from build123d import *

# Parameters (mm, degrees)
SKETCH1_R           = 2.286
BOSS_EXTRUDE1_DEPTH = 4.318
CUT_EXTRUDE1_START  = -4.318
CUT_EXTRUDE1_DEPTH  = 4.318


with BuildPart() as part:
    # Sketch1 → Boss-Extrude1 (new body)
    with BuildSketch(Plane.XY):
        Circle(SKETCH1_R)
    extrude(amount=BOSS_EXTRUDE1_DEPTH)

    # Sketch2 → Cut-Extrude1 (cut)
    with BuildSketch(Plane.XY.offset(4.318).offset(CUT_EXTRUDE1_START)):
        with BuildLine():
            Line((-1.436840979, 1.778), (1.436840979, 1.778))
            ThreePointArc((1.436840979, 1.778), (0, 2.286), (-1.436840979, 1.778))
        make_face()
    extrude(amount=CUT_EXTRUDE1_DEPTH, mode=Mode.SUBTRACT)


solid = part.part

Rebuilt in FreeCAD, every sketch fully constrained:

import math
import FreeCAD as App
import Part
import Sketcher
Q = App.Units.Quantity

doc = App.newDocument("Part")
params = doc.addObject("Spreadsheet::Sheet", "Params")
for row, (alias, value) in enumerate([
    ("sketch1_diameter", "0.18 in"),
    ("pad1_length", "0.17 in"),
    ("sketch2_radius", "0.09 in"),
    ("pocket1_length", "0.17 in"),
], start=1):
    params.set(f"A{row}", alias)
    params.set(f"B{row}", "=" + value)
    params.setAlias(f"B{row}", alias)

body = doc.addObject("PartDesign::Body", "Body")

# Sketch on XY plane
sketch1 = body.newObject("Sketcher::SketchObject", "Sketch")
sketch1.AttachmentSupport = (doc.getObject("XY_Plane"), [""])
sketch1.MapMode = "FlatFace"
sketch1.addGeometry(Part.Circle(App.Vector(0, 0, 0), App.Vector(0, 0, 1), 2.286), False)
sketch1.addConstraint([
    Sketcher.Constraint("Coincident", 0, 3, -1, 1),
    Sketcher.Constraint("Diameter", 0, Q("0.18 in")),
])
sketch1.setExpression("Constraints[1]", "Params.sketch1_diameter")
pad1 = body.newObject("PartDesign::Pad", "Pad")
pad1.Profile = sketch1
pad1.setExpression("Length", "Params.pad1_length")

# Sketch on XY plane
sketch2 = body.newObject("Sketcher::SketchObject", "Sketch001")
sketch2.AttachmentSupport = (doc.getObject("XY_Plane"), [""])
sketch2.MapMode = "FlatFace"
sketch2.addGeometry([
    Part.LineSegment(App.Vector(-1.436841, 1.778, 0), App.Vector(1.436841, 1.778, 0)),
    Part.ArcOfCircle(Part.Circle(App.Vector(0, 0, 0), App.Vector(0, 0, 1), 2.286), math.radians(51.057559), math.radians(128.942441)),
], False)
sketch2.addConstraint([
    Sketcher.Constraint("Coincident", 0, 1, 1, 2),
    Sketcher.Constraint("Coincident", 1, 1, 0, 2),
    Sketcher.Constraint("Horizontal", 0),
    Sketcher.Constraint("Coincident", 1, 3, -1, 1),
    Sketcher.Constraint("Radius", 1, Q("0.09 in")),
    Sketcher.Constraint("DistanceY", -1, 1, 0, 1, Q("0.07 in")),
])
sketch2.setExpression("Constraints[4]", "Params.sketch2_radius")
pocket1 = body.newObject("PartDesign::Pocket", "Pocket")
pocket1.Profile = sketch2
pocket1.setExpression("Length", "Params.pocket1_length")
pocket1.Reversed = True

doc.recompute()
